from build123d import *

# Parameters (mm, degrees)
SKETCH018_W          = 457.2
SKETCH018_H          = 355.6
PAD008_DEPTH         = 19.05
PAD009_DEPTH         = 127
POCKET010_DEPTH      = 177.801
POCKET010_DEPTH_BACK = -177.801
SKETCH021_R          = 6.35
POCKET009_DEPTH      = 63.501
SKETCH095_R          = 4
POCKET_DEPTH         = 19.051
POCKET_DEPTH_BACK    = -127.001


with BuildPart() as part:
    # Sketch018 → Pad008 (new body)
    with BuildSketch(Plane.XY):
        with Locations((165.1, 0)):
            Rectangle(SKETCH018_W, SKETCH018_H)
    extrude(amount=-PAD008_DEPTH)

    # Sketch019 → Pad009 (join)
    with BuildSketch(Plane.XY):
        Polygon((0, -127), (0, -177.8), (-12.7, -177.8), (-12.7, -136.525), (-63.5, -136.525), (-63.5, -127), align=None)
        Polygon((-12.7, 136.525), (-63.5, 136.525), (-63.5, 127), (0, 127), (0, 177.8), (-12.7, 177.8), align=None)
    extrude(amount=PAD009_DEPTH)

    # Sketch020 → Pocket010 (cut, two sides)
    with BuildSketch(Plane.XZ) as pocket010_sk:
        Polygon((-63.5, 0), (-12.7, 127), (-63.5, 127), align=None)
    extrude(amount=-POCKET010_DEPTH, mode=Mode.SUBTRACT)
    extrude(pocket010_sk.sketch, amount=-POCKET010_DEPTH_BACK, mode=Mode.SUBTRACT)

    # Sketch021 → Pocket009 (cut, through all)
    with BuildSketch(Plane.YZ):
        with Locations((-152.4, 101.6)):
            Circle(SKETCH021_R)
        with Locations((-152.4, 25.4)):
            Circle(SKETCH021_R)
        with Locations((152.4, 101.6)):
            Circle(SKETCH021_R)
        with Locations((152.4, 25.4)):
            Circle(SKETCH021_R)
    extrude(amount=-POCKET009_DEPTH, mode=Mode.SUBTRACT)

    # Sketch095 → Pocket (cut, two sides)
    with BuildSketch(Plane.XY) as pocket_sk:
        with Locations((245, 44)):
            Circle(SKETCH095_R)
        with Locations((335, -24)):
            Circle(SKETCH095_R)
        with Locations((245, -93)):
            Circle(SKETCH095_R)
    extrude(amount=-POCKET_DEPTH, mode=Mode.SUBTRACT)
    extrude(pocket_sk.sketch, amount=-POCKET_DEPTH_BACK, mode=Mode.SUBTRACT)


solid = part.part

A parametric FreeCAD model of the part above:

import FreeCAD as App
import Part
import Sketcher
from FreeCAD import Vector
Q = App.Units.Quantity


def add_polygon(sketch, points):
    """Adds a closed chain of lines whose ends are joined by coincident constraints."""
    first, n = sketch.GeometryCount, len(points)
    for a, b in zip(points, points[1:] + points[:1]):
        sketch.addGeometry(Part.LineSegment(App.Vector(*a, 0), App.Vector(*b, 0)), False)
    for i in range(n):
        sketch.addConstraint(Sketcher.Constraint("Coincident", first + i, 2, first + (i + 1) % n, 1))

doc = App.newDocument("Part")
body = doc.addObject("PartDesign::Body", "Body")

sketch1 = body.newObject("Sketcher::SketchObject", "Sketch")
sketch1.AttachmentSupport = (doc.getObject("XY_Plane"), [""])
sketch1.MapMode = "FlatFace"
add_polygon(sketch1, [(-63.5, 177.8), (-63.5, -177.8), (393.7, -177.8), (393.7, 177.8)])
sketch1.addConstraint([
    Sketcher.Constraint("Vertical", 0),
    Sketcher.Constraint("Horizontal", 1),
    Sketcher.Constraint("Vertical", 2),
    Sketcher.Constraint("Horizontal", 3),
    Sketcher.Constraint("DistanceX", 1, 1, 1, 2, Q("18 in")),
    Sketcher.Constraint("DistanceY", 0, 2, 0, 1, Q("14 in")),
    Sketcher.Constraint("DistanceY", 0, 2, -1, 1, Q("7 in")),
    Sketcher.Constraint("DistanceX", 0, 2, -1, 1, Q("2.5 in")),
])
pad1 = body.newObject("PartDesign::Pad", "Pad")
pad1.Profile = sketch1
pad1.Length = Q("0.75 in")
pad1.Reversed = True

sketch2 = body.newObject("Sketcher::SketchObject", "Sketch001")
sketch2.AttachmentSupport = (doc.getObject("XY_Plane"), [""])
sketch2.MapMode = "FlatFace"
add_polygon(sketch2, [(0, -177.8), (0, -127), (-63.5, -127), (-63.5, -136.525), (-12.7, -136.525), (-12.7, -177.8)])
add_polygon(sketch2, [(-12.7, 136.525), (-63.5, 136.525), (-63.5, 127), (0, 127), (0, 177.8), (-12.7, 177.8)])
sketch2.addConstraint([
    Sketcher.Constraint("Vertical", 0),
    Sketcher.Constraint("Horizontal", 1),
    Sketcher.Constraint("Vertical", 2),
    Sketcher.Constraint("Horizontal", 3),
    Sketcher.Constraint("Vertical", 4),
    Sketcher.Constraint("Horizontal", 5),
    Sketcher.Constraint("Horizontal", 6),
    Sketcher.Constraint("Vertical", 7),
    Sketcher.Constraint("Horizontal", 8),
    Sketcher.Constraint("Vertical", 9),
    Sketcher.Constraint("Horizontal", 10),
    Sketcher.Constraint("Vertical", 11),
    Sketcher.Constraint("Symmetric", 0, 2, 8, 2, -1, 1),
    Sketcher.Constraint("Symmetric", 2, 2, 6, 2, -1),
    Sketcher.Constraint("Symmetric", 5, 2, 9, 2, -1),
    Sketcher.Constraint("Vertical", 4, 2, 10, 2),
    Sketcher.Constraint("Equal", 6, 0),
    Sketcher.Constraint("DistanceX", 3, 1, 3, 2, Q("2 in")),
    Sketcher.Constraint("DistanceX", 1, 2, 1, 1, Q("2.5 in")),
    Sketcher.Constraint("DistanceY", 0, 2, -1, 1, Q("5 in")),
    Sketcher.Constraint("DistanceY", 2, 2, 2, 1, Q("0.375 in")),
])
pad2 = body.newObject("PartDesign::Pad", "Pad001")
pad2.Profile = sketch2
pad2.Length = Q("5 in")

sketch3 = body.newObject("Sketcher::SketchObject", "Sketch002")
sketch3.AttachmentSupport = (doc.getObject("XZ_Plane"), [""])
sketch3.MapMode = "FlatFace"
add_polygon(sketch3, [(-63.5, 0), (-12.7, 127), (-63.5, 127)])
sketch3.addConstraint([
    Sketcher.Constraint("Horizontal", 1),
    Sketcher.Constraint("Vertical", 2),
    Sketcher.Constraint("PointOnObject", 2, 2, -1),
    Sketcher.Constraint("DistanceX", 1, 2, 1, 1, Q("2 in")),
    Sketcher.Constraint("DistanceY", 2, 2, 2, 1, Q("5 in")),
    Sketcher.Constraint("DistanceX", 0, 2, -1, 1, Q("0.5 in")),
])
pocket1 = body.newObject("PartDesign::Pocket", "Pocket")
pocket1.Profile = sketch3
pocket1.Type = "ThroughAll"
pocket1.Midplane = True

sketch4 = body.newObject("Sketcher::SketchObject", "Sketch003")
sketch4.AttachmentSupport = (doc.getObject("YZ_Plane"), [""])
sketch4.MapMode = "FlatFace"
sketch4.addGeometry([
    Part.Circle(Vector(-152.4, 101.6, 0), Vector(0, 0, 1), 6.35),
    Part.Circle(Vector(-152.4, 25.4, 0), Vector(0, 0, 1), 6.35),
    Part.Circle(Vector(152.4, 101.6, 0), Vector(0, 0, 1), 6.35),
    Part.Circle(Vector(152.4, 25.4, 0), Vector(0, 0, 1), 6.35),
], False)
sketch4.addConstraint([
    Sketcher.Constraint("Equal", 0, 1),
    Sketcher.Constraint("Equal", 1, 2),
    Sketcher.Constraint("Equal", 2, 3),
    Sketcher.Constraint("Symmetric", 0, 3, 2, 3, -2),
    Sketcher.Constraint("Symmetric", 1, 3, 3, 3, -2),
    Sketcher.Constraint("Vertical", 0, 3, 1, 3),
    Sketcher.Constraint("Diameter", 0, Q("0.5 in")),
    Sketcher.Constraint("DistanceX", 0, 3, -1, 1, Q("6 in")),
    Sketcher.Constraint("DistanceY", -1, 1, 0, 3, Q("4 in")),
    Sketcher.Constraint("DistanceY", -1, 1, 1, 3, Q("1 in")),
])
pocket2 = body.newObject("PartDesign::Pocket", "Pocket001")
pocket2.Profile = sketch4
pocket2.Type = "ThroughAll"

sketch5 = body.newObject("Sketcher::SketchObject", "Sketch004")
sketch5.AttachmentSupport = (doc.getObject("XY_Plane"), [""])
sketch5.MapMode = "FlatFace"
sketch5.addGeometry([
    Part.Circle(Vector(245, 44, 0), Vector(0, 0, 1), 4),
    Part.Circle(Vector(335, -24, 0), Vector(0, 0, 1), 4),
    Part.Circle(Vector(245, -93, 0), Vector(0, 0, 1), 4),
], False)
sketch5.addConstraint([
    Sketcher.Constraint("Equal", 0, 1),
    Sketcher.Constraint("Equal", 1, 2),
    Sketcher.Constraint("Vertical", 0, 3, 2, 3),
    Sketcher.Constraint("Diameter", 0, 8.0),
    Sketcher.Constraint("DistanceX", -1, 1, 0, 3, 245.0),
    Sketcher.Constraint("DistanceY", -1, 1, 0, 3, 44.0),
    Sketcher.Constraint("DistanceX", -1, 1, 1, 3, 335.0),
    Sketcher.Constraint("DistanceY", 1, 3, -1, 1, 24.0),
    Sketcher.Constraint("DistanceY", 2, 3, -1, 1, 93.0),
])
pocket3 = body.newObject("PartDesign::Pocket", "Pocket002")
pocket3.Profile = sketch5
pocket3.Type = "ThroughAll"
pocket3.Midplane = True

doc.recompute()
